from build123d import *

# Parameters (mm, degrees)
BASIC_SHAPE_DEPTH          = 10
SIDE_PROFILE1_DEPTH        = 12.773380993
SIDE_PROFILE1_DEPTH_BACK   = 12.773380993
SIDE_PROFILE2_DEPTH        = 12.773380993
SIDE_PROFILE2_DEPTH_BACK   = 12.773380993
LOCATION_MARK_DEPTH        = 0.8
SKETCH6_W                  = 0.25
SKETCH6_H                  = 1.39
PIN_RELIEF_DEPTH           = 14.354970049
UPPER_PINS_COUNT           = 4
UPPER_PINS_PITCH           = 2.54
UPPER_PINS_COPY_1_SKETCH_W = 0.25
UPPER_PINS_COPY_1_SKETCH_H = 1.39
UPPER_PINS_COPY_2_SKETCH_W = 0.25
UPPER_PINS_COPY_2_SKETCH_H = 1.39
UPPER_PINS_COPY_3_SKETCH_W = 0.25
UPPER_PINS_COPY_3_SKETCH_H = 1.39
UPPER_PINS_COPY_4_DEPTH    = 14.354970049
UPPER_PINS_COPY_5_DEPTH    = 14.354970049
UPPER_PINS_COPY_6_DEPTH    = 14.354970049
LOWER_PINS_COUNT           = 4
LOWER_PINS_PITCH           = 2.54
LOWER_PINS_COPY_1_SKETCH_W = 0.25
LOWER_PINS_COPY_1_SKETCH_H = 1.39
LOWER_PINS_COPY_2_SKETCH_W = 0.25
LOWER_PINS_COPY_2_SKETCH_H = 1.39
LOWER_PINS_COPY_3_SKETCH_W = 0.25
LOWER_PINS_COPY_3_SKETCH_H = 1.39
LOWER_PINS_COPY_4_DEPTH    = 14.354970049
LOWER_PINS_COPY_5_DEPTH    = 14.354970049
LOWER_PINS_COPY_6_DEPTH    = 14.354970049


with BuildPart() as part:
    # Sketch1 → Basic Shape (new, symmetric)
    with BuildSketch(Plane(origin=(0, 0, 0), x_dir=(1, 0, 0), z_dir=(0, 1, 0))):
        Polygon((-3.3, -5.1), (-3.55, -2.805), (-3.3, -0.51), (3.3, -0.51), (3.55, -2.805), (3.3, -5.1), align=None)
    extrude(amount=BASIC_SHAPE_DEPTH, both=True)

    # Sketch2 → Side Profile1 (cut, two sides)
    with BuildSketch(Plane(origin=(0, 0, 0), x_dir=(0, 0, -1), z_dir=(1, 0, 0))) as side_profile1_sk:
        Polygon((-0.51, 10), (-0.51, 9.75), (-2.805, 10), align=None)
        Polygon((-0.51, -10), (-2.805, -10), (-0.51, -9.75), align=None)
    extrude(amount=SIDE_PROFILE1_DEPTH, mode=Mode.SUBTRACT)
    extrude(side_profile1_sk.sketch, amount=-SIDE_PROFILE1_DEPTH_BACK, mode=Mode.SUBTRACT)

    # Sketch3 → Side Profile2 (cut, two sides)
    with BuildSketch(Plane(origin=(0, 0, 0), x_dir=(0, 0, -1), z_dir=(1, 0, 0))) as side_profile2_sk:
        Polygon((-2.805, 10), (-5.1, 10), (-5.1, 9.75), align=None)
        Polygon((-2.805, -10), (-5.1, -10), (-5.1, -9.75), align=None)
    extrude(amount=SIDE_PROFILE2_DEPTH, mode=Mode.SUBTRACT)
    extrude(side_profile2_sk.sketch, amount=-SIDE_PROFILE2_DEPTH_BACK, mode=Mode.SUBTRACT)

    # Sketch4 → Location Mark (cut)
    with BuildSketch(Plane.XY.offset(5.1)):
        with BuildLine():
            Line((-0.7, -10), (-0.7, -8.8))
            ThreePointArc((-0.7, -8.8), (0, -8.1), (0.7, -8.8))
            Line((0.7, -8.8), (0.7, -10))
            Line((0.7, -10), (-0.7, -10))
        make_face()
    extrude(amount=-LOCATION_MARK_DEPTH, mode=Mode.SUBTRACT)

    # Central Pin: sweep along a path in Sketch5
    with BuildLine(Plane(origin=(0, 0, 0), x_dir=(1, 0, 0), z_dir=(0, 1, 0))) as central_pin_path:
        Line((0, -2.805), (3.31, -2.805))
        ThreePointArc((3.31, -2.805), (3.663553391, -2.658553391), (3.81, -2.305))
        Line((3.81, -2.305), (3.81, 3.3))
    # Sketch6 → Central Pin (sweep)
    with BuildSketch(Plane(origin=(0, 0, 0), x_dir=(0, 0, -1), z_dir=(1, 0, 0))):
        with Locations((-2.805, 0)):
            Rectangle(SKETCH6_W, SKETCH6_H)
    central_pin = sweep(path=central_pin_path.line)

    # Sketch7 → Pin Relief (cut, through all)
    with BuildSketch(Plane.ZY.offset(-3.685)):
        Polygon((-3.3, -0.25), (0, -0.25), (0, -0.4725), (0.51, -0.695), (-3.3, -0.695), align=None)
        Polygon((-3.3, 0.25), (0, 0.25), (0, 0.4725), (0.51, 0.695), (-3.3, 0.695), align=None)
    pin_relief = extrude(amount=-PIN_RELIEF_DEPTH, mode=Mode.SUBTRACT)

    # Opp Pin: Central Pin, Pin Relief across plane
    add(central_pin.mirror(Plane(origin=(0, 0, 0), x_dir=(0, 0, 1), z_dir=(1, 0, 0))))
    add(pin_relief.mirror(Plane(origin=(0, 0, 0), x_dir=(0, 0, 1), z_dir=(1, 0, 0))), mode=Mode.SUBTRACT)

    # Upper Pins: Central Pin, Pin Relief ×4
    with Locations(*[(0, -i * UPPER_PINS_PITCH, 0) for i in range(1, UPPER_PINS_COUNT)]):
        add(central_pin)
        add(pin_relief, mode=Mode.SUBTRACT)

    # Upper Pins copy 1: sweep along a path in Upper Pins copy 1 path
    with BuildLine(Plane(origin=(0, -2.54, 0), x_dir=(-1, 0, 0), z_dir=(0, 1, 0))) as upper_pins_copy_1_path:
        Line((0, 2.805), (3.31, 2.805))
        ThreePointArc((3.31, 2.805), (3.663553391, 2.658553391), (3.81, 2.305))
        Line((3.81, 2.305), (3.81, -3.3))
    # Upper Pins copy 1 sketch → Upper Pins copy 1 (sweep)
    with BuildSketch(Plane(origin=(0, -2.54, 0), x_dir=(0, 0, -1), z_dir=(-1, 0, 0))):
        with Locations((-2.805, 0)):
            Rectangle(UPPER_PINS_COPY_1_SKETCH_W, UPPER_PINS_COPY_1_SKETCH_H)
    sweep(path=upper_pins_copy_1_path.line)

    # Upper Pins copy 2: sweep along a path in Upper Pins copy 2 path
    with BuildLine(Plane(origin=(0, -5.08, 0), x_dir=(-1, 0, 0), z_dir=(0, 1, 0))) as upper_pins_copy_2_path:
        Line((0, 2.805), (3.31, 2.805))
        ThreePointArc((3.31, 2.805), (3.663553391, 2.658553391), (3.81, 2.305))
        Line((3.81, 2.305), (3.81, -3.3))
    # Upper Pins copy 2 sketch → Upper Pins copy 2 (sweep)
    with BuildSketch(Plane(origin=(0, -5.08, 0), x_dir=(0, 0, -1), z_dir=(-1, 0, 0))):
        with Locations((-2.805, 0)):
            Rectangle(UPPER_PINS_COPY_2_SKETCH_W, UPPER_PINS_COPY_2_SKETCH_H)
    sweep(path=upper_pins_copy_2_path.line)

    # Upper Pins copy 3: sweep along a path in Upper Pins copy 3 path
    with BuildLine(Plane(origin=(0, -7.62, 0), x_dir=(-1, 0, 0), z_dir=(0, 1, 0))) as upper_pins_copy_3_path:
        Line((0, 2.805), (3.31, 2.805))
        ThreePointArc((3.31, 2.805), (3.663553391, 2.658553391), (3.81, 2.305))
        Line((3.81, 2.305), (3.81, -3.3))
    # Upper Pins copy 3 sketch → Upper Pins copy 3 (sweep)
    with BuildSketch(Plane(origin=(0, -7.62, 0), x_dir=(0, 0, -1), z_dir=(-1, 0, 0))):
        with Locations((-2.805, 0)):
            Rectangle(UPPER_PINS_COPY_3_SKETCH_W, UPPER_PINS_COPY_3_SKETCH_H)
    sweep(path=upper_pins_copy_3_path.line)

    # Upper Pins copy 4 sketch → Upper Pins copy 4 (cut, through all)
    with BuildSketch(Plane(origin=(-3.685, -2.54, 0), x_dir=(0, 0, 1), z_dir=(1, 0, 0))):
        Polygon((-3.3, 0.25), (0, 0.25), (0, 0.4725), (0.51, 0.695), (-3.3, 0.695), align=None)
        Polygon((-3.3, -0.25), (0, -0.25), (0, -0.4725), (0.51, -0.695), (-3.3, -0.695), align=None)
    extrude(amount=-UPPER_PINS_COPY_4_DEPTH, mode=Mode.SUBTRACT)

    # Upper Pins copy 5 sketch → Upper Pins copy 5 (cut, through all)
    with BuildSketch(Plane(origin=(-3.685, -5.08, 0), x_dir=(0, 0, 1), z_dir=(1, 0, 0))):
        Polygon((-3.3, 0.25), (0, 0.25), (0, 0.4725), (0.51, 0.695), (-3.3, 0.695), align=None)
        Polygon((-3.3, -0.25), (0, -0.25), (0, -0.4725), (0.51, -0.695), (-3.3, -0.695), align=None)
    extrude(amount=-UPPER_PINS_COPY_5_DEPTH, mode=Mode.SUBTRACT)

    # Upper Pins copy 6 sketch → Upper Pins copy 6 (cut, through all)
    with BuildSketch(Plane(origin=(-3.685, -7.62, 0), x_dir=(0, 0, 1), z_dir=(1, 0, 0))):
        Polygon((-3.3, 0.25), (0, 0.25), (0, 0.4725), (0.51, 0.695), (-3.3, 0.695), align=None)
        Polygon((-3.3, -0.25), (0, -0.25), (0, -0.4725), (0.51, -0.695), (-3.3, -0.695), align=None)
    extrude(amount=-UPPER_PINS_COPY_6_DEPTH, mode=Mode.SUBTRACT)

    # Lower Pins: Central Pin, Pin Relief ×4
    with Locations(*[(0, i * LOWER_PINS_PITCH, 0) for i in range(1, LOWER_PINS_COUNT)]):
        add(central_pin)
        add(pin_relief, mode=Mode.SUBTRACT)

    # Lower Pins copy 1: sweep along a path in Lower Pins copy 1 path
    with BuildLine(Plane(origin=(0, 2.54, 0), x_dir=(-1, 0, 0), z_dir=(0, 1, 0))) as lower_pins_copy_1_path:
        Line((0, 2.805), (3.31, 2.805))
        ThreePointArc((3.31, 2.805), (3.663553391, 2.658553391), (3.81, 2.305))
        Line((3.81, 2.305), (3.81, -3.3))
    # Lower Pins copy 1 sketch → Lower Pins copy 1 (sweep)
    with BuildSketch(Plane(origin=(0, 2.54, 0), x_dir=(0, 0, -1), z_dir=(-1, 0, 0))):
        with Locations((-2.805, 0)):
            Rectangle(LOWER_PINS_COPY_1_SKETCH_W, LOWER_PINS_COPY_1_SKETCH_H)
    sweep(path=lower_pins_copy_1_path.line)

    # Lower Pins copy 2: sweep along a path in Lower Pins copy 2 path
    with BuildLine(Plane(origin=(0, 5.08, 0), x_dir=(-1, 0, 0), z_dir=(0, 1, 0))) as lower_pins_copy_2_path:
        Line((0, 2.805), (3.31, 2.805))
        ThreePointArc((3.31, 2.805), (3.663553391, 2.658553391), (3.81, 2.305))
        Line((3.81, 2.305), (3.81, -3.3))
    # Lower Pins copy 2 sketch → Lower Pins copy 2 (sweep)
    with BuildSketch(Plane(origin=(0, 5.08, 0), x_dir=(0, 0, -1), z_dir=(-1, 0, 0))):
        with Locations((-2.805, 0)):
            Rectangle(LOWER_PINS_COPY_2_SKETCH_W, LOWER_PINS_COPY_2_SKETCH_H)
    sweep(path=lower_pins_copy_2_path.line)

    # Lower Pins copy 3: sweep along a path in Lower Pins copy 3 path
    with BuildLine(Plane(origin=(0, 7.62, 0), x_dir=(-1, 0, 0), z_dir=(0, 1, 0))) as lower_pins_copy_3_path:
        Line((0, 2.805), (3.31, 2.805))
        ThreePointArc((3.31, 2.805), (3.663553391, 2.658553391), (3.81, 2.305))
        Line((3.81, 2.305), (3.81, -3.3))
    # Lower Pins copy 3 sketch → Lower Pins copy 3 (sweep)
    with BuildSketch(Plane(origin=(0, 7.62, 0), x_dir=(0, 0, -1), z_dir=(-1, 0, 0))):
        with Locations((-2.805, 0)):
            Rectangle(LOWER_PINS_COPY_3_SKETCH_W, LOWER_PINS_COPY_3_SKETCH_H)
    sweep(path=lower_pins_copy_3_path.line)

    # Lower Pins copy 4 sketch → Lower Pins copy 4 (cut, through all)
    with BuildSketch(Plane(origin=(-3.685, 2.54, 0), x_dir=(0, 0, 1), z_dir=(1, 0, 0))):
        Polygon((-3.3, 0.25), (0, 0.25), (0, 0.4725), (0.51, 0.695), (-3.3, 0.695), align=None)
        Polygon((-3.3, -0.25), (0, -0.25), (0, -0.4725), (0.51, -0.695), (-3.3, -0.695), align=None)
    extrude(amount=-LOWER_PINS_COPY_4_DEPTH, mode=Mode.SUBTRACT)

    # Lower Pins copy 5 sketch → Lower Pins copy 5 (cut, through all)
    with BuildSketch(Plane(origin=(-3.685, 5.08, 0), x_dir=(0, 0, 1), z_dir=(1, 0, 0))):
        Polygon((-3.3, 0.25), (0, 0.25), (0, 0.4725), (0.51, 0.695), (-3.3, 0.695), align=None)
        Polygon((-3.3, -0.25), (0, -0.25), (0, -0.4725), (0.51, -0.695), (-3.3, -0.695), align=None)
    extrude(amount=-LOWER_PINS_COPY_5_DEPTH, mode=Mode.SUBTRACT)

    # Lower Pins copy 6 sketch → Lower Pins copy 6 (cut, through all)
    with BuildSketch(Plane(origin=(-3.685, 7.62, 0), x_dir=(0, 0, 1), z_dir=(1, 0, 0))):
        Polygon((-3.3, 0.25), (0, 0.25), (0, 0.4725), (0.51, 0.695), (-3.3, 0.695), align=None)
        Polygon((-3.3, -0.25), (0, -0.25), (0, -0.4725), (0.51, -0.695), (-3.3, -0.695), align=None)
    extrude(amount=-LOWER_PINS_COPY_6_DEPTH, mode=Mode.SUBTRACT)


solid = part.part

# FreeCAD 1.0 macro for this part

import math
import FreeCAD as App
import Part
import Sketcher
Q = App.Units.Quantity


def add_polygon(sketch, points):
    """Adds a closed chain of lines whose ends are joined by coincident constraints."""
    first, n = sketch.GeometryCount, len(points)
    for a, b in zip(points, points[1:] + points[:1]):
        sketch.addGeometry(Part.LineSegment(App.Vector(*a, 0), App.Vector(*b, 0)), False)
    for i in range(n):
        sketch.addConstraint(Sketcher.Constraint("Coincident", first + i, 2, first + (i + 1) % n, 1))

doc = App.newDocument("Part")
body = doc.addObject("PartDesign::Body", "Body")

# Sketch on XZ plane
sketch1 = body.newObject("Sketcher::SketchObject", "Sketch")
sketch1.AttachmentSupport = (doc.getObject("XZ_Plane"), [""])
sketch1.MapMode = "FlatFace"
add_polygon(sketch1, [(-3.55, 2.805), (-3.3, 5.1), (3.3, 5.1), (3.55, 2.805), (3.3, 0.51), (-3.3, 0.51)])  # lines 0-5
sketch1.addConstraint(Sketcher.Constraint("Horizontal", 1))
sketch1.addConstraint(Sketcher.Constraint("Horizontal", 4))
sketch1.addConstraint(Sketcher.Constraint("Symmetric", 2, 2, 5, 2, -2))
sketch1.addConstraint(Sketcher.Constraint("Parallel", 0, 3))
sketch1.addConstraint(Sketcher.Constraint("Parallel", 2, 5))
sketch1.addConstraint(Sketcher.Constraint("Vertical", 1, 2, 3, 2))
sketch1.addConstraint(Sketcher.Constraint("Vertical", 0, 2, 4, 2))
sketch1.addConstraint(Sketcher.Constraint("DistanceX", 1, 1, 1, 2, Q("6.6 mm")))
sketch1.addConstraint(Sketcher.Constraint("DistanceY", -1, 1, 0, 2, Q("5.1 mm")))
sketch1.addConstraint(Sketcher.Constraint("DistanceX", 5, 2, 2, 2, Q("7.1 mm")))
sketch1.addConstraint(Sketcher.Constraint("DistanceY", -1, 1, 3, 2, Q("0.51 mm")))
pad1 = body.newObject("PartDesign::Pad", "Pad")
pad1.Profile = sketch1
pad1.Length = 20
pad1.Midplane = True

# Sketch on YZ plane
sketch2 = body.newObject("Sketcher::SketchObject", "Sketch001")
sketch2.AttachmentSupport = (doc.getObject("YZ_Plane"), [""])
sketch2.MapMode = "FlatFace"
add_polygon(sketch2, [(9.75, 0.51), (10, 0.51), (10, 2.805)])  # lines 0-2
add_polygon(sketch2, [(-10, 2.805), (-10, 0.51), (-9.75, 0.51)])  # lines 3-5
sketch2.addConstraint(Sketcher.Constraint("Horizontal", 0))
sketch2.addConstraint(Sketcher.Constraint("Vertical", 1))
sketch2.addConstraint(Sketcher.Constraint("Vertical", 3))
sketch2.addConstraint(Sketcher.Constraint("Horizontal", 4))
sketch2.addConstraint(Sketcher.Constraint("Symmetric", 0, 2, 3, 2, -2))
sketch2.addConstraint(Sketcher.Constraint("Horizontal", 1, 2, 5, 2))
sketch2.addConstraint(Sketcher.Constraint("Equal", 0, 4))
sketch2.addConstraint(Sketcher.Constraint("DistanceX", -1, 1, 0, 2, Q("10 mm")))
sketch2.addConstraint(Sketcher.Constraint("DistanceX", 0, 1, 0, 2, Q("0.25 mm")))
sketch2.addConstraint(Sketcher.Constraint("DistanceY", 1, 1, 1, 2, Q("2.295 mm")))
sketch2.addConstraint(Sketcher.Constraint("DistanceY", -1, 1, 0, 2, Q("0.51 mm")))
pocket1 = body.newObject("PartDesign::Pocket", "Pocket")
pocket1.Profile = sketch2
pocket1.Type = "ThroughAll"
pocket1.Midplane = True

# Sketch on YZ plane
sketch3 = body.newObject("Sketcher::SketchObject", "Sketch002")
sketch3.AttachmentSupport = (doc.getObject("YZ_Plane"), [""])
sketch3.MapMode = "FlatFace"
add_polygon(sketch3, [(10, 2.805), (10, 5.1), (9.75, 5.1)])  # lines 0-2
add_polygon(sketch3, [(-10, 5.1), (-10, 2.805), (-9.75, 5.1)])  # lines 3-5
sketch3.addConstraint(Sketcher.Constraint("Vertical", 0))
sketch3.addConstraint(Sketcher.Constraint("Horizontal", 1))
sketch3.addConstraint(Sketcher.Constraint("Vertical", 3))
sketch3.addConstraint(Sketcher.Constraint("Horizontal", 5))
sketch3.addConstraint(Sketcher.Constraint("Symmetric", 2, 2, 3, 2, -2))
sketch3.addConstraint(Sketcher.Constraint("Symmetric", 1, 2, 4, 2, -2))
sketch3.addConstraint(Sketcher.Constraint("DistanceX", -1, 1, 0, 2, Q("10 mm")))
sketch3.addConstraint(Sketcher.Constraint("DistanceX", 1, 2, 1, 1, Q("0.25 mm")))
sketch3.addConstraint(Sketcher.Constraint("DistanceY", -1, 1, 0, 2, Q("5.1 mm")))
sketch3.addConstraint(Sketcher.Constraint("DistanceY", 0, 1, 0, 2, Q("2.295 mm")))
pocket2 = body.newObject("PartDesign::Pocket", "Pocket001")
pocket2.Profile = sketch3
pocket2.Type = "ThroughAll"
pocket2.Midplane = True

# Sketch on XY plane
sketch4 = body.newObject("Sketcher::SketchObject", "Sketch003")
sketch4.AttachmentSupport = (doc.getObject("XY_Plane"), [""])
sketch4.MapMode = "FlatFace"
sketch4.AttachmentOffset = App.Placement(App.Vector(0, 0, 5.1), App.Rotation())
sketch4.addGeometry(Part.LineSegment(App.Vector(-0.7, -8.8, 0), App.Vector(-0.7, -10, 0)), False)
sketch4.addGeometry(Part.LineSegment(App.Vector(-0.7, -10, 0), App.Vector(0.7, -10, 0)), False)
sketch4.addGeometry(Part.LineSegment(App.Vector(0.7, -10, 0), App.Vector(0.7, -8.8, 0)), False)
sketch4.addGeometry(Part.ArcOfCircle(Part.Circle(App.Vector(0, -8.8, 0), App.Vector(0, 0, 1), 0.7), math.radians(0), math.radians(180)), False)
sketch4.addConstraint(Sketcher.Constraint("Coincident", 0, 2, 1, 1))
sketch4.addConstraint(Sketcher.Constraint("Coincident", 1, 2, 2, 1))
sketch4.addConstraint(Sketcher.Constraint("Tangent", 2, 2, 3, 1))
sketch4.addConstraint(Sketcher.Constraint("Tangent", 3, 2, 0, 1))
sketch4.addConstraint(Sketcher.Constraint("Vertical", 0))
sketch4.addConstraint(Sketcher.Constraint("Horizontal", 1))
sketch4.addConstraint(Sketcher.Constraint("Vertical", 2))
sketch4.addConstraint(Sketcher.Constraint("PointOnObject", 3, 3, -2))
sketch4.addConstraint(Sketcher.Constraint("Radius", 3, Q("0.7 mm")))
sketch4.addConstraint(Sketcher.Constraint("DistanceY", 0, 2, 0, 1, Q("1.2 mm")))
sketch4.addConstraint(Sketcher.Constraint("DistanceY", 0, 2, -1, 1, Q("10 mm")))
pocket3 = body.newObject("PartDesign::Pocket", "Pocket002")
pocket3.Profile = sketch4
pocket3.Length = 0.8

# Sketch on YZ plane
sketch5 = body.newObject("Sketcher::SketchObject", "Sketch004")
sketch5.AttachmentSupport = (doc.getObject("YZ_Plane"), [""])
sketch5.MapMode = "FlatFace"
add_polygon(sketch5, [(0.695, 2.93), (-0.695, 2.93), (-0.695, 2.68), (0.695, 2.68)])  # lines 0-3
sketch5.addConstraint(Sketcher.Constraint("Horizontal", 0))
sketch5.addConstraint(Sketcher.Constraint("Vertical", 1))
sketch5.addConstraint(Sketcher.Constraint("Horizontal", 2))
sketch5.addConstraint(Sketcher.Constraint("Vertical", 3))
sketch5.addConstraint(Sketcher.Constraint("DistanceX", 0, 2, 0, 1, Q("1.39 mm")))
sketch5.addConstraint(Sketcher.Constraint("DistanceY", 1, 2, 1, 1, Q("0.25 mm")))
sketch5.addConstraint(Sketcher.Constraint("DistanceY", -1, 1, 0, 2, Q("2.93 mm")))
sketch5.addConstraint(Sketcher.Constraint("DistanceX", 0, 2, -1, 1, Q("0.695 mm")))

# Sketch on XZ plane
sketch6 = body.newObject("Sketcher::SketchObject", "Sketch005")
sketch6.AttachmentSupport = (doc.getObject("XZ_Plane"), [""])
sketch6.MapMode = "FlatFace"
sketch6.addGeometry(Part.LineSegment(App.Vector(0, 2.805, 0), App.Vector(3.31, 2.805, 0)), False)
sketch6.addGeometry(Part.ArcOfCircle(Part.Circle(App.Vector(3.31, 2.305, 0), App.Vector(0, 0, 1), 0.5), math.radians(0), math.radians(90)), False)
sketch6.addGeometry(Part.LineSegment(App.Vector(3.81, 2.305, 0), App.Vector(3.81, -3.3, 0)), False)
sketch6.addConstraint(Sketcher.Constraint("Tangent", 0, 2, 1, 2))
sketch6.addConstraint(Sketcher.Constraint("Tangent", 1, 1, 2, 1))
sketch6.addConstraint(Sketcher.Constraint("Horizontal", 0))
sketch6.addConstraint(Sketcher.Constraint("Vertical", 2))
sketch6.addConstraint(Sketcher.Constraint("PointOnObject", 0, 1, -2))
sketch6.addConstraint(Sketcher.Constraint("Radius", 1, Q("0.5 mm")))
sketch6.addConstraint(Sketcher.Constraint("DistanceX", 0, 1, 0, 2, Q("3.31 mm")))
sketch6.addConstraint(Sketcher.Constraint("DistanceY", 2, 2, -1, 1, Q("3.3 mm")))
sketch6.addConstraint(Sketcher.Constraint("DistanceY", 2, 2, 2, 1, Q("5.605 mm")))
doc.recompute()

additivepipe = body.newObject("PartDesign::AdditivePipe", "AdditivePipe")
additivepipe.Profile = sketch5
additivepipe.Spine = (sketch6, ["Edge1", "Edge2", "Edge3"])

# Sketch on YZ plane
sketch7 = body.newObject("Sketcher::SketchObject", "Sketch006")
sketch7.AttachmentSupport = (doc.getObject("YZ_Plane"), [""])
sketch7.MapMode = "FlatFace"
sketch7.AttachmentOffset = App.Placement(App.Vector(0, 0, 3.685), App.Rotation())
add_polygon(sketch7, [(-0.25, 0), (-0.25, -3.3), (-0.695, -3.3), (-0.695, 0.51), (-0.4725, 0)])  # lines 0-4
add_polygon(sketch7, [(0.25, -3.3), (0.25, 0), (0.4725, 0), (0.695, 0.51), (0.695, -3.3)])  # lines 5-9
sketch7.addConstraint(Sketcher.Constraint("Vertical", 0))
sketch7.addConstraint(Sketcher.Constraint("Horizontal", 1))
sketch7.addConstraint(Sketcher.Constraint("Vertical", 2))
sketch7.addConstraint(Sketcher.Constraint("Horizontal", 4))
sketch7.addConstraint(Sketcher.Constraint("Vertical", 5))
sketch7.addConstraint(Sketcher.Constraint("Horizontal", 6))
sketch7.addConstraint(Sketcher.Constraint("Vertical", 8))
sketch7.addConstraint(Sketcher.Constraint("Horizontal", 9))
sketch7.addConstraint(Sketcher.Constraint("Symmetric", 4, 2, 5, 2, -1, 1))
sketch7.addConstraint(Sketcher.Constraint("Symmetric", 3, 2, 6, 2, -2))
sketch7.addConstraint(Sketcher.Constraint("Symmetric", 2, 2, 7, 2, -2))
sketch7.addConstraint(Sketcher.Constraint("Horizontal", 1, 2, 8, 2))
sketch7.addConstraint(Sketcher.Constraint("DistanceY", 0, 2, 0, 1, Q("3.3 mm")))
sketch7.addConstraint(Sketcher.Constraint("DistanceY", 2, 1, 2, 2, Q("3.81 mm")))
sketch7.addConstraint(Sketcher.Constraint("DistanceX", 4, 2, 5, 2, Q("0.5 mm")))
sketch7.addConstraint(Sketcher.Constraint("DistanceX", 1, 2, 1, 1, Q("0.445 mm")))
sketch7.addConstraint(Sketcher.Constraint("DistanceX", 4, 1, 4, 2, Q("0.2225 mm")))
pocket4 = body.newObject("PartDesign::Pocket", "Pocket003")
pocket4.Profile = sketch7
pocket4.Type = "ThroughAll"
pocket4.Reversed = True
doc.recompute()

mirrored = body.newObject("PartDesign::Mirrored", "Mirrored")
mirrored.Originals = [additivepipe, pocket4]
mirrored.MirrorPlane = (doc.getObject("YZ_Plane"), [""])
body.Tip = mirrored
doc.recompute()

linearpattern = body.newObject("PartDesign::LinearPattern", "LinearPattern")
linearpattern.Originals = [additivepipe, pocket4]
linearpattern.Direction = (doc.getObject("Y_Axis"), [""])
linearpattern.Mode = "offset"
linearpattern.Offset = 2.54
linearpattern.Occurrences = 4
linearpattern.Reversed = True
body.Tip = linearpattern

# Sketch on YZ plane
sketch8 = body.newObject("Sketcher::SketchObject", "Sketch007")
sketch8.AttachmentSupport = (doc.getObject("YZ_Plane"), [""])
sketch8.MapMode = "FlatFace"
add_polygon(sketch8, [(-3.235, 2.93), (-1.845, 2.93), (-1.845, 2.68), (-3.235, 2.68)])  # lines 0-3
sketch8.addConstraint(Sketcher.Constraint("Horizontal", 0))
sketch8.addConstraint(Sketcher.Constraint("Vertical", 1))
sketch8.addConstraint(Sketcher.Constraint("Horizontal", 2))
sketch8.addConstraint(Sketcher.Constraint("Vertical", 3))
sketch8.addConstraint(Sketcher.Constraint("DistanceX", 0, 1, 0, 2, Q("1.39 mm")))
sketch8.addConstraint(Sketcher.Constraint("DistanceY", 1, 2, 1, 1, Q("0.25 mm")))
sketch8.addConstraint(Sketcher.Constraint("DistanceY", -1, 1, 0, 2, Q("2.93 mm")))
sketch8.addConstraint(Sketcher.Constraint("DistanceX", 0, 2, -1, 1, Q("1.845 mm")))

# Sketch on XZ plane
sketch9 = body.newObject("Sketcher::SketchObject", "Sketch008")
sketch9.AttachmentSupport = (doc.getObject("XZ_Plane"), [""])
sketch9.MapMode = "FlatFace"
sketch9.AttachmentOffset = App.Placement(App.Vector(0, 0, 2.54), App.Rotation())
sketch9.addGeometry(Part.LineSegment(App.Vector(0, 2.805, 0), App.Vector(-3.31, 2.805, 0)), False)
sketch9.addGeometry(Part.ArcOfCircle(Part.Circle(App.Vector(-3.31, 2.305, 0), App.Vector(0, 0, 1), 0.5), math.radians(90), math.radians(180)), False)
sketch9.addGeometry(Part.LineSegment(App.Vector(-3.81, 2.305, 0), App.Vector(-3.81, -3.3, 0)), False)
sketch9.addConstraint(Sketcher.Constraint("Tangent", 0, 2, 1, 1))
sketch9.addConstraint(Sketcher.Constraint("Tangent", 1, 2, 2, 1))
sketch9.addConstraint(Sketcher.Constraint("Horizontal", 0))
sketch9.addConstraint(Sketcher.Constraint("Vertical", 2))
sketch9.addConstraint(Sketcher.Constraint("PointOnObject", 0, 1, -2))
sketch9.addConstraint(Sketcher.Constraint("Radius", 1, Q("0.5 mm")))
sketch9.addConstraint(Sketcher.Constraint("DistanceX", 0, 2, 0, 1, Q("3.31 mm")))
sketch9.addConstraint(Sketcher.Constraint("DistanceY", 2, 2, -1, 1, Q("3.3 mm")))
sketch9.addConstraint(Sketcher.Constraint("DistanceY", 2, 2, 2, 1, Q("5.605 mm")))
doc.recompute()

additivepipe2 = body.newObject("PartDesign::AdditivePipe", "AdditivePipe001")
additivepipe2.Profile = sketch8
additivepipe2.Spine = (sketch9, ["Edge1", "Edge2", "Edge3"])

# Sketch on YZ plane
sketch10 = body.newObject("Sketcher::SketchObject", "Sketch009")
sketch10.AttachmentSupport = (doc.getObject("YZ_Plane"), [""])
sketch10.MapMode = "FlatFace"
add_polygon(sketch10, [(-5.775, 2.93), (-4.385, 2.93), (-4.385, 2.68), (-5.775, 2.68)])  # lines 0-3
sketch10.addConstraint(Sketcher.Constraint("Horizontal", 0))
sketch10.addConstraint(Sketcher.Constraint("Vertical", 1))
sketch10.addConstraint(Sketcher.Constraint("Horizontal", 2))
sketch10.addConstraint(Sketcher.Constraint("Vertical", 3))
sketch10.addConstraint(Sketcher.Constraint("DistanceX", 0, 1, 0, 2, Q("1.39 mm")))
sketch10.addConstraint(Sketcher.Constraint("DistanceY", 1, 2, 1, 1, Q("0.25 mm")))
sketch10.addConstraint(Sketcher.Constraint("DistanceY", -1, 1, 0, 2, Q("2.93 mm")))
sketch10.addConstraint(Sketcher.Constraint("DistanceX", 0, 2, -1, 1, Q("4.385 mm")))

# Sketch on XZ plane
sketch11 = body.newObject("Sketcher::SketchObject", "Sketch010")
sketch11.AttachmentSupport = (doc.getObject("XZ_Plane"), [""])
sketch11.MapMode = "FlatFace"
sketch11.AttachmentOffset = App.Placement(App.Vector(0, 0, 5.08), App.Rotation())
sketch11.addGeometry(Part.LineSegment(App.Vector(0, 2.805, 0), App.Vector(-3.31, 2.805, 0)), False)
sketch11.addGeometry(Part.ArcOfCircle(Part.Circle(App.Vector(-3.31, 2.305, 0), App.Vector(0, 0, 1), 0.5), math.radians(90), math.radians(180)), False)
sketch11.addGeometry(Part.LineSegment(App.Vector(-3.81, 2.305, 0), App.Vector(-3.81, -3.3, 0)), False)
sketch11.addConstraint(Sketcher.Constraint("Tangent", 0, 2, 1, 1))
sketch11.addConstraint(Sketcher.Constraint("Tangent", 1, 2, 2, 1))
sketch11.addConstraint(Sketcher.Constraint("Horizontal", 0))
sketch11.addConstraint(Sketcher.Constraint("Vertical", 2))
sketch11.addConstraint(Sketcher.Constraint("PointOnObject", 0, 1, -2))
sketch11.addConstraint(Sketcher.Constraint("Radius", 1, Q("0.5 mm")))
sketch11.addConstraint(Sketcher.Constraint("DistanceX", 0, 2, 0, 1, Q("3.31 mm")))
sketch11.addConstraint(Sketcher.Constraint("DistanceY", 2, 2, -1, 1, Q("3.3 mm")))
sketch11.addConstraint(Sketcher.Constraint("DistanceY", 2, 2, 2, 1, Q("5.605 mm")))
doc.recompute()

additivepipe3 = body.newObject("PartDesign::AdditivePipe", "AdditivePipe002")
additivepipe3.Profile = sketch10
additivepipe3.Spine = (sketch11, ["Edge1", "Edge2", "Edge3"])

# Sketch on YZ plane
sketch12 = body.newObject("Sketcher::SketchObject", "Sketch011")
sketch12.AttachmentSupport = (doc.getObject("YZ_Plane"), [""])
sketch12.MapMode = "FlatFace"
add_polygon(sketch12, [(-8.315, 2.93), (-6.925, 2.93), (-6.925, 2.68), (-8.315, 2.68)])  # lines 0-3
sketch12.addConstraint(Sketcher.Constraint("Horizontal", 0))
sketch12.addConstraint(Sketcher.Constraint("Vertical", 1))
sketch12.addConstraint(Sketcher.Constraint("Horizontal", 2))
sketch12.addConstraint(Sketcher.Constraint("Vertical", 3))
sketch12.addConstraint(Sketcher.Constraint("DistanceX", 0, 1, 0, 2, Q("1.39 mm")))
sketch12.addConstraint(Sketcher.Constraint("DistanceY", 1, 2, 1, 1, Q("0.25 mm")))
sketch12.addConstraint(Sketcher.Constraint("DistanceY", -1, 1, 0, 2, Q("2.93 mm")))
sketch12.addConstraint(Sketcher.Constraint("DistanceX", 0, 2, -1, 1, Q("6.925 mm")))

# Sketch on XZ plane
sketch13 = body.newObject("Sketcher::SketchObject", "Sketch012")
sketch13.AttachmentSupport = (doc.getObject("XZ_Plane"), [""])
sketch13.MapMode = "FlatFace"
sketch13.AttachmentOffset = App.Placement(App.Vector(0, 0, 7.62), App.Rotation())
sketch13.addGeometry(Part.LineSegment(App.Vector(0, 2.805, 0), App.Vector(-3.31, 2.805, 0)), False)
sketch13.addGeometry(Part.ArcOfCircle(Part.Circle(App.Vector(-3.31, 2.305, 0), App.Vector(0, 0, 1), 0.5), math.radians(90), math.radians(180)), False)
sketch13.addGeometry(Part.LineSegment(App.Vector(-3.81, 2.305, 0), App.Vector(-3.81, -3.3, 0)), False)
sketch13.addConstraint(Sketcher.Constraint("Tangent", 0, 2, 1, 1))
sketch13.addConstraint(Sketcher.Constraint("Tangent", 1, 2, 2, 1))
sketch13.addConstraint(Sketcher.Constraint("Horizontal", 0))
sketch13.addConstraint(Sketcher.Constraint("Vertical", 2))
sketch13.addConstraint(Sketcher.Constraint("PointOnObject", 0, 1, -2))
sketch13.addConstraint(Sketcher.Constraint("Radius", 1, Q("0.5 mm")))
sketch13.addConstraint(Sketcher.Constraint("DistanceX", 0, 2, 0, 1, Q("3.31 mm")))
sketch13.addConstraint(Sketcher.Constraint("DistanceY", 2, 2, -1, 1, Q("3.3 mm")))
sketch13.addConstraint(Sketcher.Constraint("DistanceY", 2, 2, 2, 1, Q("5.605 mm")))
doc.recompute()

additivepipe4 = body.newObject("PartDesign::AdditivePipe", "AdditivePipe003")
additivepipe4.Profile = sketch12
additivepipe4.Spine = (sketch13, ["Edge1", "Edge2", "Edge3"])

# Sketch on YZ plane
sketch14 = body.newObject("Sketcher::SketchObject", "Sketch013")
sketch14.AttachmentSupport = (doc.getObject("YZ_Plane"), [""])
sketch14.MapMode = "FlatFace"
sketch14.AttachmentOffset = App.Placement(App.Vector(0, 0, -3.685), App.Rotation())
add_polygon(sketch14, [(-2.79, -3.3), (-2.79, 0), (-3.0125, 0), (-3.235, 0.51), (-3.235, -3.3)])  # lines 0-4
add_polygon(sketch14, [(-2.29, 0), (-2.29, -3.3), (-1.845, -3.3), (-1.845, 0.51), (-2.0675, 0)])  # lines 5-9
sketch14.addConstraint(Sketcher.Constraint("Vertical", 0))
sketch14.addConstraint(Sketcher.Constraint("Horizontal", 1))
sketch14.addConstraint(Sketcher.Constraint("Vertical", 3))
sketch14.addConstraint(Sketcher.Constraint("Horizontal", 4))
sketch14.addConstraint(Sketcher.Constraint("Vertical", 5))
sketch14.addConstraint(Sketcher.Constraint("Horizontal", 6))
sketch14.addConstraint(Sketcher.Constraint("Vertical", 7))
sketch14.addConstraint(Sketcher.Constraint("Horizontal", 9))
sketch14.addConstraint(Sketcher.Constraint("PointOnObject", 0, 2, -1))
sketch14.addConstraint(Sketcher.Constraint("PointOnObject", 8, 2, -1))
sketch14.addConstraint(Sketcher.Constraint("Horizontal", 4, 2, 5, 2))
sketch14.addConstraint(Sketcher.Constraint("Horizontal", 2, 2, 7, 2))
sketch14.addConstraint(Sketcher.Constraint("Equal", 4, 6))
sketch14.addConstraint(Sketcher.Constraint("Equal", 1, 9))
sketch14.addConstraint(Sketcher.Constraint("DistanceY", 0, 1, 0, 2, Q("3.3 mm")))
sketch14.addConstraint(Sketcher.Constraint("DistanceY", 3, 2, 3, 1, Q("3.81 mm")))
sketch14.addConstraint(Sketcher.Constraint("DistanceX", 4, 2, 5, 2, Q("0.5 mm")))
sketch14.addConstraint(Sketcher.Constraint("DistanceX", 4, 1, 4, 2, Q("0.445 mm")))
sketch14.addConstraint(Sketcher.Constraint("DistanceX", 0, 2, -1, 1, Q("2.79 mm")))
sketch14.addConstraint(Sketcher.Constraint("DistanceX", 1, 2, 1, 1, Q("0.2225 mm")))
pocket5 = body.newObject("PartDesign::Pocket", "Pocket004")
pocket5.Profile = sketch14
pocket5.Type = "ThroughAll"

# Sketch on YZ plane
sketch15 = body.newObject("Sketcher::SketchObject", "Sketch014")
sketch15.AttachmentSupport = (doc.getObject("YZ_Plane"), [""])
sketch15.MapMode = "FlatFace"
sketch15.AttachmentOffset = App.Placement(App.Vector(0, 0, -3.685), App.Rotation())
add_polygon(sketch15, [(-5.33, -3.3), (-5.33, 0), (-5.5525, 0), (-5.775, 0.51), (-5.775, -3.3)])  # lines 0-4
add_polygon(sketch15, [(-4.83, 0), (-4.83, -3.3), (-4.385, -3.3), (-4.385, 0.51), (-4.6075, 0)])  # lines 5-9
sketch15.addConstraint(Sketcher.Constraint("Vertical", 0))
sketch15.addConstraint(Sketcher.Constraint("Horizontal", 1))
sketch15.addConstraint(Sketcher.Constraint("Vertical", 3))
sketch15.addConstraint(Sketcher.Constraint("Horizontal", 4))
sketch15.addConstraint(Sketcher.Constraint("Vertical", 5))
sketch15.addConstraint(Sketcher.Constraint("Horizontal", 6))
sketch15.addConstraint(Sketcher.Constraint("Vertical", 7))
sketch15.addConstraint(Sketcher.Constraint("Horizontal", 9))
sketch15.addConstraint(Sketcher.Constraint("PointOnObject", 0, 2, -1))
sketch15.addConstraint(Sketcher.Constraint("PointOnObject", 8, 2, -1))
sketch15.addConstraint(Sketcher.Constraint("Horizontal", 4, 2, 5, 2))
sketch15.addConstraint(Sketcher.Constraint("Horizontal", 2, 2, 7, 2))
sketch15.addConstraint(Sketcher.Constraint("Equal", 4, 6))
sketch15.addConstraint(Sketcher.Constraint("Equal", 1, 9))
sketch15.addConstraint(Sketcher.Constraint("DistanceY", 0, 1, 0, 2, Q("3.3 mm")))
sketch15.addConstraint(Sketcher.Constraint("DistanceY", 3, 2, 3, 1, Q("3.81 mm")))
sketch15.addConstraint(Sketcher.Constraint("DistanceX", 4, 2, 5, 2, Q("0.5 mm")))
sketch15.addConstraint(Sketcher.Constraint("DistanceX", 4, 1, 4, 2, Q("0.445 mm")))
sketch15.addConstraint(Sketcher.Constraint("DistanceX", 0, 2, -1, 1, Q("5.33 mm")))
sketch15.addConstraint(Sketcher.Constraint("DistanceX", 1, 2, 1, 1, Q("0.2225 mm")))
pocket6 = body.newObject("PartDesign::Pocket", "Pocket005")
pocket6.Profile = sketch15
pocket6.Type = "ThroughAll"

# Sketch on YZ plane
sketch16 = body.newObject("Sketcher::SketchObject", "Sketch015")
sketch16.AttachmentSupport = (doc.getObject("YZ_Plane"), [""])
sketch16.MapMode = "FlatFace"
sketch16.AttachmentOffset = App.Placement(App.Vector(0, 0, -3.685), App.Rotation())
add_polygon(sketch16, [(-7.87, -3.3), (-7.87, 0), (-8.0925, 0), (-8.315, 0.51), (-8.315, -3.3)])  # lines 0-4
add_polygon(sketch16, [(-7.37, 0), (-7.37, -3.3), (-6.925, -3.3), (-6.925, 0.51), (-7.1475, 0)])  # lines 5-9
sketch16.addConstraint(Sketcher.Constraint("Vertical", 0))
sketch16.addConstraint(Sketcher.Constraint("Horizontal", 1))
sketch16.addConstraint(Sketcher.Constraint("Vertical", 3))
sketch16.addConstraint(Sketcher.Constraint("Horizontal", 4))
sketch16.addConstraint(Sketcher.Constraint("Vertical", 5))
sketch16.addConstraint(Sketcher.Constraint("Horizontal", 6))
sketch16.addConstraint(Sketcher.Constraint("Vertical", 7))
sketch16.addConstraint(Sketcher.Constraint("Horizontal", 9))
sketch16.addConstraint(Sketcher.Constraint("PointOnObject", 0, 2, -1))
sketch16.addConstraint(Sketcher.Constraint("PointOnObject", 8, 2, -1))
sketch16.addConstraint(Sketcher.Constraint("Horizontal", 4, 2, 5, 2))
sketch16.addConstraint(Sketcher.Constraint("Horizontal", 2, 2, 7, 2))
sketch16.addConstraint(Sketcher.Constraint("Equal", 4, 6))
sketch16.addConstraint(Sketcher.Constraint("Equal", 1, 9))
sketch16.addConstraint(Sketcher.Constraint("DistanceY", 0, 1, 0, 2, Q("3.3 mm")))
sketch16.addConstraint(Sketcher.Constraint("DistanceY", 3, 2, 3, 1, Q("3.81 mm")))
sketch16.addConstraint(Sketcher.Constraint("DistanceX", 4, 2, 5, 2, Q("0.5 mm")))
sketch16.addConstraint(Sketcher.Constraint("DistanceX", 4, 1, 4, 2, Q("0.445 mm")))
sketch16.addConstraint(Sketcher.Constraint("DistanceX", 0, 2, -1, 1, Q("7.87 mm")))
sketch16.addConstraint(Sketcher.Constraint("DistanceX", 1, 2, 1, 1, Q("0.2225 mm")))
pocket7 = body.newObject("PartDesign::Pocket", "Pocket006")
pocket7.Profile = sketch16
pocket7.Type = "ThroughAll"
doc.recompute()

linearpattern2 = body.newObject("PartDesign::LinearPattern", "LinearPattern001")
linearpattern2.Originals = [additivepipe, pocket4]
linearpattern2.Direction = (doc.getObject("Y_Axis"), [""])
linearpattern2.Mode = "offset"
linearpattern2.Offset = 2.54
linearpattern2.Occurrences = 4
body.Tip = linearpattern2

# Sketch on YZ plane
sketch17 = body.newObject("Sketcher::SketchObject", "Sketch016")
sketch17.AttachmentSupport = (doc.getObject("YZ_Plane"), [""])
sketch17.MapMode = "FlatFace"
add_polygon(sketch17, [(1.845, 2.93), (3.235, 2.93), (3.235, 2.68), (1.845, 2.68)])  # lines 0-3
sketch17.addConstraint(Sketcher.Constraint("Horizontal", 0))
sketch17.addConstraint(Sketcher.Constraint("Vertical", 1))
sketch17.addConstraint(Sketcher.Constraint("Horizontal", 2))
sketch17.addConstraint(Sketcher.Constraint("Vertical", 3))
sketch17.addConstraint(Sketcher.Constraint("DistanceX", 0, 1, 0, 2, Q("1.39 mm")))
sketch17.addConstraint(Sketcher.Constraint("DistanceY", 1, 2, 1, 1, Q("0.25 mm")))
sketch17.addConstraint(Sketcher.Constraint("DistanceY", -1, 1, 0, 2, Q("2.93 mm")))
sketch17.addConstraint(Sketcher.Constraint("DistanceX", -1, 1, 0, 2, Q("3.235 mm")))

# Sketch on XZ plane
sketch18 = body.newObject("Sketcher::SketchObject", "Sketch017")
sketch18.AttachmentSupport = (doc.getObject("XZ_Plane"), [""])
sketch18.MapMode = "FlatFace"
sketch18.AttachmentOffset = App.Placement(App.Vector(0, 0, -2.54), App.Rotation())
sketch18.addGeometry(Part.LineSegment(App.Vector(0, 2.805, 0), App.Vector(-3.31, 2.805, 0)), False)
sketch18.addGeometry(Part.ArcOfCircle(Part.Circle(App.Vector(-3.31, 2.305, 0), App.Vector(0, 0, 1), 0.5), math.radians(90), math.radians(180)), False)
sketch18.addGeometry(Part.LineSegment(App.Vector(-3.81, 2.305, 0), App.Vector(-3.81, -3.3, 0)), False)
sketch18.addConstraint(Sketcher.Constraint("Tangent", 0, 2, 1, 1))
sketch18.addConstraint(Sketcher.Constraint("Tangent", 1, 2, 2, 1))
sketch18.addConstraint(Sketcher.Constraint("Horizontal", 0))
sketch18.addConstraint(Sketcher.Constraint("Vertical", 2))
sketch18.addConstraint(Sketcher.Constraint("PointOnObject", 0, 1, -2))
sketch18.addConstraint(Sketcher.Constraint("Radius", 1, Q("0.5 mm")))
sketch18.addConstraint(Sketcher.Constraint("DistanceX", 0, 2, 0, 1, Q("3.31 mm")))
sketch18.addConstraint(Sketcher.Constraint("DistanceY", 2, 2, -1, 1, Q("3.3 mm")))
sketch18.addConstraint(Sketcher.Constraint("DistanceY", 2, 2, 2, 1, Q("5.605 mm")))
doc.recompute()

additivepipe5 = body.newObject("PartDesign::AdditivePipe", "AdditivePipe004")
additivepipe5.Profile = sketch17
additivepipe5.Spine = (sketch18, ["Edge1", "Edge2", "Edge3"])

# Sketch on YZ plane
sketch19 = body.newObject("Sketcher::SketchObject", "Sketch018")
sketch19.AttachmentSupport = (doc.getObject("YZ_Plane"), [""])
sketch19.MapMode = "FlatFace"
add_polygon(sketch19, [(4.385, 2.93), (5.775, 2.93), (5.775, 2.68), (4.385, 2.68)])  # lines 0-3
sketch19.addConstraint(Sketcher.Constraint("Horizontal", 0))
sketch19.addConstraint(Sketcher.Constraint("Vertical", 1))
sketch19.addConstraint(Sketcher.Constraint("Horizontal", 2))
sketch19.addConstraint(Sketcher.Constraint("Vertical", 3))
sketch19.addConstraint(Sketcher.Constraint("DistanceX", 0, 1, 0, 2, Q("1.39 mm")))
sketch19.addConstraint(Sketcher.Constraint("DistanceY", 1, 2, 1, 1, Q("0.25 mm")))
sketch19.addConstraint(Sketcher.Constraint("DistanceY", -1, 1, 0, 2, Q("2.93 mm")))
sketch19.addConstraint(Sketcher.Constraint("DistanceX", -1, 1, 0, 2, Q("5.775 mm")))

# Sketch on XZ plane
sketch20 = body.newObject("Sketcher::SketchObject", "Sketch019")
sketch20.AttachmentSupport = (doc.getObject("XZ_Plane"), [""])
sketch20.MapMode = "FlatFace"
sketch20.AttachmentOffset = App.Placement(App.Vector(0, 0, -5.08), App.Rotation())
sketch20.addGeometry(Part.LineSegment(App.Vector(0, 2.805, 0), App.Vector(-3.31, 2.805, 0)), False)
sketch20.addGeometry(Part.ArcOfCircle(Part.Circle(App.Vector(-3.31, 2.305, 0), App.Vector(0, 0, 1), 0.5), math.radians(90), math.radians(180)), False)
sketch20.addGeometry(Part.LineSegment(App.Vector(-3.81, 2.305, 0), App.Vector(-3.81, -3.3, 0)), False)
sketch20.addConstraint(Sketcher.Constraint("Tangent", 0, 2, 1, 1))
sketch20.addConstraint(Sketcher.Constraint("Tangent", 1, 2, 2, 1))
sketch20.addConstraint(Sketcher.Constraint("Horizontal", 0))
sketch20.addConstraint(Sketcher.Constraint("Vertical", 2))
sketch20.addConstraint(Sketcher.Constraint("PointOnObject", 0, 1, -2))
sketch20.addConstraint(Sketcher.Constraint("Radius", 1, Q("0.5 mm")))
sketch20.addConstraint(Sketcher.Constraint("DistanceX", 0, 2, 0, 1, Q("3.31 mm")))
sketch20.addConstraint(Sketcher.Constraint("DistanceY", 2, 2, -1, 1, Q("3.3 mm")))
sketch20.addConstraint(Sketcher.Constraint("DistanceY", 2, 2, 2, 1, Q("5.605 mm")))
doc.recompute()

additivepipe6 = body.newObject("PartDesign::AdditivePipe", "AdditivePipe005")
additivepipe6.Profile = sketch19
additivepipe6.Spine = (sketch20, ["Edge1", "Edge2", "Edge3"])

# Sketch on YZ plane
sketch21 = body.newObject("Sketcher::SketchObject", "Sketch020")
sketch21.AttachmentSupport = (doc.getObject("YZ_Plane"), [""])
sketch21.MapMode = "FlatFace"
add_polygon(sketch21, [(6.925, 2.93), (8.315, 2.93), (8.315, 2.68), (6.925, 2.68)])  # lines 0-3
sketch21.addConstraint(Sketcher.Constraint("Horizontal", 0))
sketch21.addConstraint(Sketcher.Constraint("Vertical", 1))
sketch21.addConstraint(Sketcher.Constraint("Horizontal", 2))
sketch21.addConstraint(Sketcher.Constraint("Vertical", 3))
sketch21.addConstraint(Sketcher.Constraint("DistanceX", 0, 1, 0, 2, Q("1.39 mm")))
sketch21.addConstraint(Sketcher.Constraint("DistanceY", 1, 2, 1, 1, Q("0.25 mm")))
sketch21.addConstraint(Sketcher.Constraint("DistanceY", -1, 1, 0, 2, Q("2.93 mm")))
sketch21.addConstraint(Sketcher.Constraint("DistanceX", -1, 1, 0, 2, Q("8.315 mm")))

# Sketch on XZ plane
sketch22 = body.newObject("Sketcher::SketchObject", "Sketch021")
sketch22.AttachmentSupport = (doc.getObject("XZ_Plane"), [""])
sketch22.MapMode = "FlatFace"
sketch22.AttachmentOffset = App.Placement(App.Vector(0, 0, -7.62), App.Rotation())
sketch22.addGeometry(Part.LineSegment(App.Vector(0, 2.805, 0), App.Vector(-3.31, 2.805, 0)), False)
sketch22.addGeometry(Part.ArcOfCircle(Part.Circle(App.Vector(-3.31, 2.305, 0), App.Vector(0, 0, 1), 0.5), math.radians(90), math.radians(180)), False)
sketch22.addGeometry(Part.LineSegment(App.Vector(-3.81, 2.305, 0), App.Vector(-3.81, -3.3, 0)), False)
sketch22.addConstraint(Sketcher.Constraint("Tangent", 0, 2, 1, 1))
sketch22.addConstraint(Sketcher.Constraint("Tangent", 1, 2, 2, 1))
sketch22.addConstraint(Sketcher.Constraint("Horizontal", 0))
sketch22.addConstraint(Sketcher.Constraint("Vertical", 2))
sketch22.addConstraint(Sketcher.Constraint("PointOnObject", 0, 1, -2))
sketch22.addConstraint(Sketcher.Constraint("Radius", 1, Q("0.5 mm")))
sketch22.addConstraint(Sketcher.Constraint("DistanceX", 0, 2, 0, 1, Q("3.31 mm")))
sketch22.addConstraint(Sketcher.Constraint("DistanceY", 2, 2, -1, 1, Q("3.3 mm")))
sketch22.addConstraint(Sketcher.Constraint("DistanceY", 2, 2, 2, 1, Q("5.605 mm")))
doc.recompute()

additivepipe7 = body.newObject("PartDesign::AdditivePipe", "AdditivePipe006")
additivepipe7.Profile = sketch21
additivepipe7.Spine = (sketch22, ["Edge1", "Edge2", "Edge3"])

# Sketch on YZ plane
sketch23 = body.newObject("Sketcher::SketchObject", "Sketch022")
sketch23.AttachmentSupport = (doc.getObject("YZ_Plane"), [""])
sketch23.MapMode = "FlatFace"
sketch23.AttachmentOffset = App.Placement(App.Vector(0, 0, -3.685), App.Rotation())
add_polygon(sketch23, [(2.29, -3.3), (2.29, 0), (2.0675, 0), (1.845, 0.51), (1.845, -3.3)])  # lines 0-4
add_polygon(sketch23, [(2.79, 0), (2.79, -3.3), (3.235, -3.3), (3.235, 0.51), (3.0125, 0)])  # lines 5-9
sketch23.addConstraint(Sketcher.Constraint("Vertical", 0))
sketch23.addConstraint(Sketcher.Constraint("Horizontal", 1))
sketch23.addConstraint(Sketcher.Constraint("Vertical", 3))
sketch23.addConstraint(Sketcher.Constraint("Horizontal", 4))
sketch23.addConstraint(Sketcher.Constraint("Vertical", 5))
sketch23.addConstraint(Sketcher.Constraint("Horizontal", 6))
sketch23.addConstraint(Sketcher.Constraint("Vertical", 7))
sketch23.addConstraint(Sketcher.Constraint("Horizontal", 9))
sketch23.addConstraint(Sketcher.Constraint("PointOnObject", 0, 2, -1))
sketch23.addConstraint(Sketcher.Constraint("PointOnObject", 8, 2, -1))
sketch23.addConstraint(Sketcher.Constraint("Horizontal", 4, 2, 5, 2))
sketch23.addConstraint(Sketcher.Constraint("Horizontal", 2, 2, 7, 2))
sketch23.addConstraint(Sketcher.Constraint("Equal", 4, 6))
sketch23.addConstraint(Sketcher.Constraint("Equal", 1, 9))
sketch23.addConstraint(Sketcher.Constraint("DistanceY", 0, 1, 0, 2, Q("3.3 mm")))
sketch23.addConstraint(Sketcher.Constraint("DistanceY", 3, 2, 3, 1, Q("3.81 mm")))
sketch23.addConstraint(Sketcher.Constraint("DistanceX", 4, 2, 5, 2, Q("0.5 mm")))
sketch23.addConstraint(Sketcher.Constraint("DistanceX", 4, 1, 4, 2, Q("0.445 mm")))
sketch23.addConstraint(Sketcher.Constraint("DistanceX", -1, 1, 0, 2, Q("2.29 mm")))
sketch23.addConstraint(Sketcher.Constraint("DistanceX", 1, 2, 1, 1, Q("0.2225 mm")))
pocket8 = body.newObject("PartDesign::Pocket", "Pocket007")
pocket8.Profile = sketch23
pocket8.Type = "ThroughAll"

# Sketch on YZ plane
sketch24 = body.newObject("Sketcher::SketchObject", "Sketch023")
sketch24.AttachmentSupport = (doc.getObject("YZ_Plane"), [""])
sketch24.MapMode = "FlatFace"
sketch24.AttachmentOffset = App.Placement(App.Vector(0, 0, -3.685), App.Rotation())
add_polygon(sketch24, [(4.83, -3.3), (4.83, 0), (4.6075, 0), (4.385, 0.51), (4.385, -3.3)])  # lines 0-4
add_polygon(sketch24, [(5.33, 0), (5.33, -3.3), (5.775, -3.3), (5.775, 0.51), (5.5525, 0)])  # lines 5-9
sketch24.addConstraint(Sketcher.Constraint("Vertical", 0))
sketch24.addConstraint(Sketcher.Constraint("Horizontal", 1))
sketch24.addConstraint(Sketcher.Constraint("Vertical", 3))
sketch24.addConstraint(Sketcher.Constraint("Horizontal", 4))
sketch24.addConstraint(Sketcher.Constraint("Vertical", 5))
sketch24.addConstraint(Sketcher.Constraint("Horizontal", 6))
sketch24.addConstraint(Sketcher.Constraint("Vertical", 7))
sketch24.addConstraint(Sketcher.Constraint("Horizontal", 9))
sketch24.addConstraint(Sketcher.Constraint("PointOnObject", 0, 2, -1))
sketch24.addConstraint(Sketcher.Constraint("PointOnObject", 8, 2, -1))
sketch24.addConstraint(Sketcher.Constraint("Horizontal", 4, 2, 5, 2))
sketch24.addConstraint(Sketcher.Constraint("Horizontal", 2, 2, 7, 2))
sketch24.addConstraint(Sketcher.Constraint("Equal", 4, 6))
sketch24.addConstraint(Sketcher.Constraint("Equal", 1, 9))
sketch24.addConstraint(Sketcher.Constraint("DistanceY", 0, 1, 0, 2, Q("3.3 mm")))
sketch24.addConstraint(Sketcher.Constraint("DistanceY", 3, 2, 3, 1, Q("3.81 mm")))
sketch24.addConstraint(Sketcher.Constraint("DistanceX", 4, 2, 5, 2, Q("0.5 mm")))
sketch24.addConstraint(Sketcher.Constraint("DistanceX", 4, 1, 4, 2, Q("0.445 mm")))
sketch24.addConstraint(Sketcher.Constraint("DistanceX", -1, 1, 0, 2, Q("4.83 mm")))
sketch24.addConstraint(Sketcher.Constraint("DistanceX", 1, 2, 1, 1, Q("0.2225 mm")))
pocket9 = body.newObject("PartDesign::Pocket", "Pocket008")
pocket9.Profile = sketch24
pocket9.Type = "ThroughAll"

# Sketch on YZ plane
sketch25 = body.newObject("Sketcher::SketchObject", "Sketch024")
sketch25.AttachmentSupport = (doc.getObject("YZ_Plane"), [""])
sketch25.MapMode = "FlatFace"
sketch25.AttachmentOffset = App.Placement(App.Vector(0, 0, -3.685), App.Rotation())
add_polygon(sketch25, [(7.37, -3.3), (7.37, 0), (7.1475, 0), (6.925, 0.51), (6.925, -3.3)])  # lines 0-4
add_polygon(sketch25, [(7.87, 0), (7.87, -3.3), (8.315, -3.3), (8.315, 0.51), (8.0925, 0)])  # lines 5-9
sketch25.addConstraint(Sketcher.Constraint("Vertical", 0))
sketch25.addConstraint(Sketcher.Constraint("Horizontal", 1))
sketch25.addConstraint(Sketcher.Constraint("Vertical", 3))
sketch25.addConstraint(Sketcher.Constraint("Horizontal", 4))
sketch25.addConstraint(Sketcher.Constraint("Vertical", 5))
sketch25.addConstraint(Sketcher.Constraint("Horizontal", 6))
sketch25.addConstraint(Sketcher.Constraint("Vertical", 7))
sketch25.addConstraint(Sketcher.Constraint("Horizontal", 9))
sketch25.addConstraint(Sketcher.Constraint("PointOnObject", 0, 2, -1))
sketch25.addConstraint(Sketcher.Constraint("PointOnObject", 8, 2, -1))
sketch25.addConstraint(Sketcher.Constraint("Horizontal", 4, 2, 5, 2))
sketch25.addConstraint(Sketcher.Constraint("Horizontal", 2, 2, 7, 2))
sketch25.addConstraint(Sketcher.Constraint("Equal", 4, 6))
sketch25.addConstraint(Sketcher.Constraint("Equal", 1, 9))
sketch25.addConstraint(Sketcher.Constraint("DistanceY", 0, 1, 0, 2, Q("3.3 mm")))
sketch25.addConstraint(Sketcher.Constraint("DistanceY", 3, 2, 3, 1, Q("3.81 mm")))
sketch25.addConstraint(Sketcher.Constraint("DistanceX", 4, 2, 5, 2, Q("0.5 mm")))
sketch25.addConstraint(Sketcher.Constraint("DistanceX", 4, 1, 4, 2, Q("0.445 mm")))
sketch25.addConstraint(Sketcher.Constraint("DistanceX", -1, 1, 0, 2, Q("7.37 mm")))
sketch25.addConstraint(Sketcher.Constraint("DistanceX", 1, 2, 1, 1, Q("0.2225 mm")))
pocket10 = body.newObject("PartDesign::Pocket", "Pocket009")
pocket10.Profile = sketch25
pocket10.Type = "ThroughAll"

doc.recompute()
